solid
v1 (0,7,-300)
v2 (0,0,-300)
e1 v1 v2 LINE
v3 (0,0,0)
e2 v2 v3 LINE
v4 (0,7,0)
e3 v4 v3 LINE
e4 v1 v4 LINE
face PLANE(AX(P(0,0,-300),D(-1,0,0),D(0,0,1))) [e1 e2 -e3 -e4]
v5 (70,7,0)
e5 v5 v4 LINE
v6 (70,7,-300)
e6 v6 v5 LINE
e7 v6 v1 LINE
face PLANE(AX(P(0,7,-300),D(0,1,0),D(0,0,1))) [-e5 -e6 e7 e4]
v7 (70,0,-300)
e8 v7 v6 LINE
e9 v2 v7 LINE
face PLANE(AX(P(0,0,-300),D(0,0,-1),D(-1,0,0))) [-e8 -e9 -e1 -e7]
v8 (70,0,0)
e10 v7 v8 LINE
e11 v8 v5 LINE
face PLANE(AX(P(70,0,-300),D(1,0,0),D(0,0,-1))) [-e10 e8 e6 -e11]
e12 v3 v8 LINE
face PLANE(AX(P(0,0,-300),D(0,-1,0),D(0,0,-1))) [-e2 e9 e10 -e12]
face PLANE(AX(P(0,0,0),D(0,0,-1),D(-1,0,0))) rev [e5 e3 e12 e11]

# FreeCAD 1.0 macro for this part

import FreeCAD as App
import Part
import Sketcher

V = App.Vector
Q = App.Units.Quantity


def add_polygon(sketch, points):
    """Adds a closed chain of lines whose ends are joined by coincident constraints."""
    first, n = sketch.GeometryCount, len(points)
    for a, b in zip(points, points[1:] + points[:1]):
        sketch.addGeometry(Part.LineSegment(App.Vector(*a, 0), App.Vector(*b, 0)), False)
    for i in range(n):
        sketch.addConstraint(Sketcher.Constraint("Coincident", first + i, 2, first + (i + 1) % n, 1))

doc = App.newDocument("Part")
body = doc.addObject("PartDesign::Body", "Body")

# Sketch on XY plane
sketch1 = body.newObject("Sketcher::SketchObject", "Sketch")
sketch1.AttachmentSupport = (doc.getObject("XY_Plane"), [""])
sketch1.MapMode = "FlatFace"
add_polygon(sketch1, [(0, 7), (0, 0), (70, 0), (70, 7)])  # lines 0-3
sketch1.addConstraint([
    Sketcher.Constraint("Vertical", 0),
    Sketcher.Constraint("Horizontal", 1),
    Sketcher.Constraint("Vertical", 2),
    Sketcher.Constraint("Horizontal", 3),
    Sketcher.Constraint("Coincident", 0, 2, -1, 1),
    Sketcher.Constraint("DistanceX", 1, 1, 1, 2, Q("70 mm")),
    Sketcher.Constraint("DistanceY", 0, 2, 0, 1, Q("7 mm")),
])
pad1 = body.newObject("PartDesign::Pad", "Pad")
pad1.Profile = sketch1
pad1.Length = 300
pad1.Reversed = True

doc.recompute()
